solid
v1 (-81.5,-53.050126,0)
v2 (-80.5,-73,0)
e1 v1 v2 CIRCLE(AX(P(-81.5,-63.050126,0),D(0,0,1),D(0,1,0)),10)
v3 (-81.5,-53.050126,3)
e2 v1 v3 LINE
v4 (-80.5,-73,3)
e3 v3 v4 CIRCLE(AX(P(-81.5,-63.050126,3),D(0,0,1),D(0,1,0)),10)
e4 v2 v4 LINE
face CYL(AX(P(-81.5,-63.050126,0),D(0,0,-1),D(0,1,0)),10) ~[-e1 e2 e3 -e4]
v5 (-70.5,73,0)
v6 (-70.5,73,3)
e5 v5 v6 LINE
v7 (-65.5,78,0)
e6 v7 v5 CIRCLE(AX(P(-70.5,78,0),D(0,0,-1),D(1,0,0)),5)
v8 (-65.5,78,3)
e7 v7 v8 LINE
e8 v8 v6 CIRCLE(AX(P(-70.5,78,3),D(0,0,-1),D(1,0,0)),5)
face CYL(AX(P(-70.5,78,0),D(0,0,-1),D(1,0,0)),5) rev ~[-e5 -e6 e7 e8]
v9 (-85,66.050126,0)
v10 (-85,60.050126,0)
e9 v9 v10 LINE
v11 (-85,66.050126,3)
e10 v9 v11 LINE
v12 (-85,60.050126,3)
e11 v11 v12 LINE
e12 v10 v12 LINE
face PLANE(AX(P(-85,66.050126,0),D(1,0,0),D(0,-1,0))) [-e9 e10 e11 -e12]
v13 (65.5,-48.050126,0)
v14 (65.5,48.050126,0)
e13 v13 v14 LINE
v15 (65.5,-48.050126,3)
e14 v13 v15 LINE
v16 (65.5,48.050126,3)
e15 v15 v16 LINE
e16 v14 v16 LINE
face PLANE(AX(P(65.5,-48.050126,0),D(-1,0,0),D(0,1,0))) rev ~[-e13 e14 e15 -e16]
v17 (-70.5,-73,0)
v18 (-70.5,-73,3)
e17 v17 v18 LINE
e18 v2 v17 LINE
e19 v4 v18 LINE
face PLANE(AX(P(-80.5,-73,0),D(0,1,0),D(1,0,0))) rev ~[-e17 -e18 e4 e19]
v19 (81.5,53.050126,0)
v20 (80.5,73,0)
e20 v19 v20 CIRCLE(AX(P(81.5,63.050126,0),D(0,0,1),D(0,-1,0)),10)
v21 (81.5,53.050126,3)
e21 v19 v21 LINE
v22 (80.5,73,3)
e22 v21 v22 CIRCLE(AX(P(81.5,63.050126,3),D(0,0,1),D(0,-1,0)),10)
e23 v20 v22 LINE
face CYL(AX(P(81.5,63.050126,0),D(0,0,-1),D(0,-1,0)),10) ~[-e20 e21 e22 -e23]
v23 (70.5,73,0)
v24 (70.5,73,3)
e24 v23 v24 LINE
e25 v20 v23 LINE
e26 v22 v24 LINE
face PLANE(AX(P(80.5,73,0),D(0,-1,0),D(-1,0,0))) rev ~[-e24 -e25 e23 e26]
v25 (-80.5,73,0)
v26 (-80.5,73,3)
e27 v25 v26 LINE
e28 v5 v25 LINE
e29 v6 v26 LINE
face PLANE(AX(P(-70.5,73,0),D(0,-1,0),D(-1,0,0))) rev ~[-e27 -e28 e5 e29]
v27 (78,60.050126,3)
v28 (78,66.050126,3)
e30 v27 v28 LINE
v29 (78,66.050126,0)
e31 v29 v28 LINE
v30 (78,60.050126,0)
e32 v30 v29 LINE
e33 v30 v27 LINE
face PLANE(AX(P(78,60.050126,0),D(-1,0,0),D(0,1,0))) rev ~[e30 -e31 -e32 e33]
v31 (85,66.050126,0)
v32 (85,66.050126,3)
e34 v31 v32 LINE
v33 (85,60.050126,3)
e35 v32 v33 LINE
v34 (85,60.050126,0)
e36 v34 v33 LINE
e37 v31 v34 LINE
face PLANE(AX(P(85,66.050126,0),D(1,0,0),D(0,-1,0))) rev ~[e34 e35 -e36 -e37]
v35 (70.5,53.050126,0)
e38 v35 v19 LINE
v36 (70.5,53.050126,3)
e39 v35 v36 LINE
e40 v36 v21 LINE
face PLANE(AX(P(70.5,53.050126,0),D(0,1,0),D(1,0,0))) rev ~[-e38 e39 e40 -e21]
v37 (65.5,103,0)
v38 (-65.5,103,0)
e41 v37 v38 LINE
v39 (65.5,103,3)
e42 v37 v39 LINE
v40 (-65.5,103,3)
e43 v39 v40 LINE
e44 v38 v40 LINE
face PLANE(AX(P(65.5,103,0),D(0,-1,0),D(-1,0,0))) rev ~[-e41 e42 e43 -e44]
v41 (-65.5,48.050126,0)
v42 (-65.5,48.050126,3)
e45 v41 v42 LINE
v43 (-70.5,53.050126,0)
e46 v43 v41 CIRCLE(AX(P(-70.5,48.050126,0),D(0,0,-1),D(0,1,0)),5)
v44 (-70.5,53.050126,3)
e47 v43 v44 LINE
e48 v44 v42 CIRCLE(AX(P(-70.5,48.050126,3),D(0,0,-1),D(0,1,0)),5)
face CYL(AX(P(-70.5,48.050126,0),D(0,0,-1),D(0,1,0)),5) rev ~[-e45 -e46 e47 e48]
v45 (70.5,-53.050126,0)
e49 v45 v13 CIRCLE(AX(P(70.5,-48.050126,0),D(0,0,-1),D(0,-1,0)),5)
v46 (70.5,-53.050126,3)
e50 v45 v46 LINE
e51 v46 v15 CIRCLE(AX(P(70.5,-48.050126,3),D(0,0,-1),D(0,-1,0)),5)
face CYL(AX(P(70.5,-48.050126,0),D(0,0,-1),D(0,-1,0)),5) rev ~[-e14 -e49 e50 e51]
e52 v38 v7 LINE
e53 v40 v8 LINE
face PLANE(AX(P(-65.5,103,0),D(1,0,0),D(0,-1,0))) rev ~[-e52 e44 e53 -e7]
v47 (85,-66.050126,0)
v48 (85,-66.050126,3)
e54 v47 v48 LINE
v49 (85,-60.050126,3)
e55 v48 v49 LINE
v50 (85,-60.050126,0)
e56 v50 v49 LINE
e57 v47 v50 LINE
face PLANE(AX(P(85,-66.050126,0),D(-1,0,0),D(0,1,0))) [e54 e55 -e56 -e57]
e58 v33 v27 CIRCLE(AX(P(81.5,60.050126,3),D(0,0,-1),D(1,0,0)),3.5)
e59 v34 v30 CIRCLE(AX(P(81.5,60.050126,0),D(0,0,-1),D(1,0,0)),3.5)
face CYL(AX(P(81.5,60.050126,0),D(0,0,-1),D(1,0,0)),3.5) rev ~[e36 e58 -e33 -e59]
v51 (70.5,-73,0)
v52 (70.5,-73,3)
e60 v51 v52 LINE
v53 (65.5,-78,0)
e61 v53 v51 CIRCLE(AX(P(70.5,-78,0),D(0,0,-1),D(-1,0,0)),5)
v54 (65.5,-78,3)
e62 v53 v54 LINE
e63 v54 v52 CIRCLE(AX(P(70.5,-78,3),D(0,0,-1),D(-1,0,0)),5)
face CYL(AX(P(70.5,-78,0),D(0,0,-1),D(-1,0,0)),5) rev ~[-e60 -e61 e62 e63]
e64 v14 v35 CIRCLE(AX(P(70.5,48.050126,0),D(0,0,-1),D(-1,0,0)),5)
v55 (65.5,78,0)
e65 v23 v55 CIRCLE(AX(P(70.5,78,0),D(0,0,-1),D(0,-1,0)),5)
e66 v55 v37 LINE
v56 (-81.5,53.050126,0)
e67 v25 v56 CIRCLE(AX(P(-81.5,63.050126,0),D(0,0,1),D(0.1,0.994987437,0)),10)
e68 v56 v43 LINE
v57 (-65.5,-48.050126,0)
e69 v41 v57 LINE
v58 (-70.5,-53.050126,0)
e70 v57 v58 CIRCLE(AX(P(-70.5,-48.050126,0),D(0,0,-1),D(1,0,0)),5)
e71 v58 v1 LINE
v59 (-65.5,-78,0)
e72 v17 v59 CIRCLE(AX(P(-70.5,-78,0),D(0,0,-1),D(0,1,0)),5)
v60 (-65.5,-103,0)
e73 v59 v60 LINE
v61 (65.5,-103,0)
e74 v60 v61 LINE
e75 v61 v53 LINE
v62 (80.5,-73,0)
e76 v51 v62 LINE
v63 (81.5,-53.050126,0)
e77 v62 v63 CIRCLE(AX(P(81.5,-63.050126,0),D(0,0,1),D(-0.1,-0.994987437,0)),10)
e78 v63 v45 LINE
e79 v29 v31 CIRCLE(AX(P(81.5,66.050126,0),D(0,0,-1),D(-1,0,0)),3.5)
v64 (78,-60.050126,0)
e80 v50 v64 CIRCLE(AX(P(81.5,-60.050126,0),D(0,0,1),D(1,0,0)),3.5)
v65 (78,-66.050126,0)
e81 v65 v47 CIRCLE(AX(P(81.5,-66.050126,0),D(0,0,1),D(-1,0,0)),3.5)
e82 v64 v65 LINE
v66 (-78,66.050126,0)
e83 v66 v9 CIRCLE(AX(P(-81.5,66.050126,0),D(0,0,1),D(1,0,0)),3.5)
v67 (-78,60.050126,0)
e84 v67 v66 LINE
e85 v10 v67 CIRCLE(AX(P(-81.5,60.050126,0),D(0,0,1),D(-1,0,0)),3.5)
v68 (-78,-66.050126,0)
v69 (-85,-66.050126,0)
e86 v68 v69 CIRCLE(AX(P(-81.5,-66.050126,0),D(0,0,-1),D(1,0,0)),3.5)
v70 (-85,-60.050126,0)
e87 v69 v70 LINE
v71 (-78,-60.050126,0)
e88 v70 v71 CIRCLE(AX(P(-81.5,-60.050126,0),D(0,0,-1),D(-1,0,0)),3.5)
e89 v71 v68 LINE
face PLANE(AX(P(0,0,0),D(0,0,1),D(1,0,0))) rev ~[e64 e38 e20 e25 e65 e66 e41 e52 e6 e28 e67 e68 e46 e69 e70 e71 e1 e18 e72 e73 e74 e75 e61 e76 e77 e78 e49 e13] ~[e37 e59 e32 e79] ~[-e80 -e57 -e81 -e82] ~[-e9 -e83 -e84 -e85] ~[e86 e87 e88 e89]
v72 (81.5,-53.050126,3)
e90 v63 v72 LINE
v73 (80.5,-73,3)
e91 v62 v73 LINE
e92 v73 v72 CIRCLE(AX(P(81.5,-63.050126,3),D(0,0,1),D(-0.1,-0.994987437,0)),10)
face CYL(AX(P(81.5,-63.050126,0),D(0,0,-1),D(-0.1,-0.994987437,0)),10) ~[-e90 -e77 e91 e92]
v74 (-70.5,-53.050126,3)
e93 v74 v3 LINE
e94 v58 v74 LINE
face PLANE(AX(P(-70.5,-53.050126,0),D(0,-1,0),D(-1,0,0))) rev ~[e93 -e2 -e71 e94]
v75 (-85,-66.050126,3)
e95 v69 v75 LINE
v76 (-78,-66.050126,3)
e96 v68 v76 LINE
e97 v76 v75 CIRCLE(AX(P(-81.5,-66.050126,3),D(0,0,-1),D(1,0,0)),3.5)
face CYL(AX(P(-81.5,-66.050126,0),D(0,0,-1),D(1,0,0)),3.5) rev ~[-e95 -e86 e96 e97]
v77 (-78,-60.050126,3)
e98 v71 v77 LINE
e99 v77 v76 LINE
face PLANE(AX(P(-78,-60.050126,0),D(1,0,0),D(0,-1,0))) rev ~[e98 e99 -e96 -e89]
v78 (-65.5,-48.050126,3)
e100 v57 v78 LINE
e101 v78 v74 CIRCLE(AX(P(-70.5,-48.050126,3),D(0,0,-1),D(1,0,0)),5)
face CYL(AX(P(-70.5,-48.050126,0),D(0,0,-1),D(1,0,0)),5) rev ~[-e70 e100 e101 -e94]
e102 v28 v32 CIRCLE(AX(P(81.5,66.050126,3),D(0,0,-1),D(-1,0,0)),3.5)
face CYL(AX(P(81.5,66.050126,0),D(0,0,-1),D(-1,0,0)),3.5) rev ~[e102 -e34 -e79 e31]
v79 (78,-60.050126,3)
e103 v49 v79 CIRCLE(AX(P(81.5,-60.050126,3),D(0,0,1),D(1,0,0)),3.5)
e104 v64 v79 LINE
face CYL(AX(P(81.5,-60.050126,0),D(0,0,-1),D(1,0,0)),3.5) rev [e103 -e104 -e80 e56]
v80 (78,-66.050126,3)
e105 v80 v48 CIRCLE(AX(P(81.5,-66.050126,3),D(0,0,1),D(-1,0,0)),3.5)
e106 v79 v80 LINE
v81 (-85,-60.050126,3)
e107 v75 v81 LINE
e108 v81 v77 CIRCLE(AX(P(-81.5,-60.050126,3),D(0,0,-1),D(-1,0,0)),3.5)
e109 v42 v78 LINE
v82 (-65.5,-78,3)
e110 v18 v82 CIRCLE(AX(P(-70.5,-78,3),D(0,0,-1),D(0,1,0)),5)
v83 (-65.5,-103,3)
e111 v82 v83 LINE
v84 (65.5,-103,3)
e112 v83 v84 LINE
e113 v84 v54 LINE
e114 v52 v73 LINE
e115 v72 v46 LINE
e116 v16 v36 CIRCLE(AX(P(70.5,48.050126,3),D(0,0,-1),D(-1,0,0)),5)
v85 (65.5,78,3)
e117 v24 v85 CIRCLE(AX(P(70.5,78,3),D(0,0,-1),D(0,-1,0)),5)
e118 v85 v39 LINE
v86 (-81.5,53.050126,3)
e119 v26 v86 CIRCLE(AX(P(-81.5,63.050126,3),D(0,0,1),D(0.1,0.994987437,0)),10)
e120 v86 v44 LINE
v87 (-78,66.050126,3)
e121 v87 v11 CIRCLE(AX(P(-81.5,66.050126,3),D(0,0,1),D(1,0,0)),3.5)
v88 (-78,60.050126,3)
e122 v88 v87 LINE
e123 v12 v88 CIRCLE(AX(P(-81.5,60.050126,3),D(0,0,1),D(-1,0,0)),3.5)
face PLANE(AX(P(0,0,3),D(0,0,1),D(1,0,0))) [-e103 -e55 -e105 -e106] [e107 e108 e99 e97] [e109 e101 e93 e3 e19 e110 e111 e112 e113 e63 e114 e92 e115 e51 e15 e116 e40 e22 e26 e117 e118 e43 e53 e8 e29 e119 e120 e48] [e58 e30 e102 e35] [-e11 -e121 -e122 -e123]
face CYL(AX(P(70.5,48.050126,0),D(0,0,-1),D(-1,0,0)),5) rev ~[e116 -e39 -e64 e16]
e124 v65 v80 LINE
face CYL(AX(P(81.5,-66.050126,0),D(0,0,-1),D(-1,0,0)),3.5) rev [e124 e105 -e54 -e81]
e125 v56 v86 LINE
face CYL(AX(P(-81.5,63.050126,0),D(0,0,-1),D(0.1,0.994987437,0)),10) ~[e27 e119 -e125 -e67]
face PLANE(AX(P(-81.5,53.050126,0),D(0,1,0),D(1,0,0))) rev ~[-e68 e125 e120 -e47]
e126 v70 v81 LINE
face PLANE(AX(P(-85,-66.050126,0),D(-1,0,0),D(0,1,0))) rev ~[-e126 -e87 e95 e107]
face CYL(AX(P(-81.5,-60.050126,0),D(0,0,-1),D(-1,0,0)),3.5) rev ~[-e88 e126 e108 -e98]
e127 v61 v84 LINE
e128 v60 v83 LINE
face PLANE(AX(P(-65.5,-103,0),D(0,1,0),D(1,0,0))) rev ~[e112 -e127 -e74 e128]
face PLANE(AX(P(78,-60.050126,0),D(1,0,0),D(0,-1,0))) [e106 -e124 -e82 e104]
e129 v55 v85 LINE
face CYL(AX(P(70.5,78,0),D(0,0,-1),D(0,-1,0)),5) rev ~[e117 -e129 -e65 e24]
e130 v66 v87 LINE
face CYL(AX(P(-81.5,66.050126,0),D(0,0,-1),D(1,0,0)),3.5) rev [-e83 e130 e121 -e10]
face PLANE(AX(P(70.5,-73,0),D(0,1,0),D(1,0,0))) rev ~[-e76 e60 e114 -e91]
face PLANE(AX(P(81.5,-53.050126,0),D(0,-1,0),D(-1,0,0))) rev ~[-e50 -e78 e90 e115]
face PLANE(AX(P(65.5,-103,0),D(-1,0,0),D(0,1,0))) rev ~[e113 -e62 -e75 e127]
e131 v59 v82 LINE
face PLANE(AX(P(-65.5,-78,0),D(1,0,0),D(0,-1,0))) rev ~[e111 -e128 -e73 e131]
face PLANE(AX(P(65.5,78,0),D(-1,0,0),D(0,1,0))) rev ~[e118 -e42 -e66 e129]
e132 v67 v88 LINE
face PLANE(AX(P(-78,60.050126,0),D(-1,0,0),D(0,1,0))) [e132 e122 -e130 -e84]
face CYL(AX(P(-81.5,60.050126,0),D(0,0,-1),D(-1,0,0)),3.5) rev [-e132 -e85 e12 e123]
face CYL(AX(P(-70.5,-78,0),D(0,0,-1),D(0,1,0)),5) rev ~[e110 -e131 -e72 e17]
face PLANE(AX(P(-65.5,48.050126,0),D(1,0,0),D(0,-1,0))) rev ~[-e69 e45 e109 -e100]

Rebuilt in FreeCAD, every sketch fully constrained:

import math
import FreeCAD as App
import Part
import Sketcher
from FreeCAD import Vector
Q = App.Units.Quantity

doc = App.newDocument("Part")
body = doc.addObject("PartDesign::Body", "Body")

sketch1 = body.newObject("Sketcher::SketchObject", "Sketch")
sketch1.AttachmentSupport = (doc.getObject("XY_Plane"), [""])
sketch1.MapMode = "FlatFace"
sketch1.addGeometry(Part.LineSegment(Vector(-65.5, -103, 0), Vector(65.5, -103, 0)), False)
sketch1.addGeometry(Part.LineSegment(Vector(65.5, -103, 0), Vector(65.5, -78, 0)), False)
sketch1.addGeometry(Part.ArcOfCircle(Part.Circle(Vector(70.5, -78, 0), Vector(0, 0, 1), 5), math.radians(90), math.radians(180)), False)
sketch1.addGeometry(Part.LineSegment(Vector(70.5, -73, 0), Vector(80.5, -73, 0)), False)
sketch1.addGeometry(Part.ArcOfCircle(Part.Circle(Vector(81.5, -63.050126, 0), Vector(0, 0, 1), 10), math.radians(-95.73917), math.radians(90)), False)
sketch1.addGeometry(Part.LineSegment(Vector(81.5, -53.050126, 0), Vector(70.5, -53.050126, 0)), False)
sketch1.addGeometry(Part.ArcOfCircle(Part.Circle(Vector(70.5, -48.050126, 0), Vector(0, 0, 1), 5), math.radians(180), math.radians(270)), False)
sketch1.addGeometry(Part.LineSegment(Vector(65.5, -48.050126, 0), Vector(65.5, 48.050126, 0)), False)
sketch1.addGeometry(Part.ArcOfCircle(Part.Circle(Vector(70.5, 48.050126, 0), Vector(0, 0, 1), 5), math.radians(90), math.radians(180)), False)
sketch1.addGeometry(Part.LineSegment(Vector(70.5, 53.050126, 0), Vector(81.5, 53.050126, 0)), False)
sketch1.addGeometry(Part.ArcOfCircle(Part.Circle(Vector(81.5, 63.050126, 0), Vector(0, 0, 1), 10), math.radians(-90), math.radians(95.73917)), False)
sketch1.addGeometry(Part.LineSegment(Vector(80.5, 73, 0), Vector(70.5, 73, 0)), False)
sketch1.addGeometry(Part.ArcOfCircle(Part.Circle(Vector(70.5, 78, 0), Vector(0, 0, 1), 5), math.radians(180), math.radians(270)), False)
sketch1.addGeometry(Part.LineSegment(Vector(65.5, 78, 0), Vector(65.5, 103, 0)), False)
sketch1.addGeometry(Part.LineSegment(Vector(65.5, 103, 0), Vector(-65.5, 103, 0)), False)
sketch1.addGeometry(Part.LineSegment(Vector(-65.5, 103, 0), Vector(-65.5, 78, 0)), False)
sketch1.addGeometry(Part.ArcOfCircle(Part.Circle(Vector(-70.5, 78, 0), Vector(0, 0, 1), 5), math.radians(-90), math.radians(0)), False)
sketch1.addGeometry(Part.LineSegment(Vector(-70.5, 73, 0), Vector(-80.5, 73, 0)), False)
sketch1.addGeometry(Part.ArcOfCircle(Part.Circle(Vector(-81.5, 63.050126, 0), Vector(0, 0, 1), 10), math.radians(84.26083), math.radians(270)), False)
sketch1.addGeometry(Part.LineSegment(Vector(-81.5, 53.050126, 0), Vector(-70.5, 53.050126, 0)), False)
sketch1.addGeometry(Part.ArcOfCircle(Part.Circle(Vector(-70.5, 48.050126, 0), Vector(0, 0, 1), 5), math.radians(0), math.radians(90)), False)
sketch1.addGeometry(Part.LineSegment(Vector(-65.5, 48.050126, 0), Vector(-65.5, -48.050126, 0)), False)
sketch1.addGeometry(Part.ArcOfCircle(Part.Circle(Vector(-70.5, -48.050126, 0), Vector(0, 0, 1), 5), math.radians(-90), math.radians(0)), False)
sketch1.addGeometry(Part.LineSegment(Vector(-70.5, -53.050126, 0), Vector(-81.5, -53.050126, 0)), False)
sketch1.addGeometry(Part.ArcOfCircle(Part.Circle(Vector(-81.5, -63.050126, 0), Vector(0, 0, 1), 10), math.radians(90), math.radians(275.73917)), False)
sketch1.addGeometry(Part.LineSegment(Vector(-80.5, -73, 0), Vector(-70.5, -73, 0)), False)
sketch1.addGeometry(Part.ArcOfCircle(Part.Circle(Vector(-70.5, -78, 0), Vector(0, 0, 1), 5), math.radians(0), math.radians(90)), False)
sketch1.addGeometry(Part.LineSegment(Vector(-65.5, -78, 0), Vector(-65.5, -103, 0)), False)
sketch1.addGeometry(Part.ArcOfCircle(Part.Circle(Vector(-81.5, -60.050126, 0), Vector(0, 0, 1), 3.5), math.radians(0), math.radians(180)), False)
sketch1.addGeometry(Part.LineSegment(Vector(-78, -60.050126, 0), Vector(-78, -66.050126, 0)), False)
sketch1.addGeometry(Part.ArcOfCircle(Part.Circle(Vector(-81.5, -66.050126, 0), Vector(0, 0, 1), 3.5), math.radians(180), math.radians(360)), False)
sketch1.addGeometry(Part.LineSegment(Vector(-85, -66.050126, 0), Vector(-85, -60.050126, 0)), False)
sketch1.addGeometry(Part.LineSegment(Vector(78, -66.050126, 0), Vector(78, -60.050126, 0)), False)
sketch1.addGeometry(Part.ArcOfCircle(Part.Circle(Vector(81.5, -60.050126, 0), Vector(0, 0, 1), 3.5), math.radians(0), math.radians(180)), False)
sketch1.addGeometry(Part.LineSegment(Vector(85, -60.050126, 0), Vector(85, -66.050126, 0)), False)
sketch1.addGeometry(Part.ArcOfCircle(Part.Circle(Vector(81.5, -66.050126, 0), Vector(0, 0, 1), 3.5), math.radians(180), math.radians(360)), False)
sketch1.addGeometry(Part.LineSegment(Vector(-78, 66.050126, 0), Vector(-78, 60.050126, 0)), False)
sketch1.addGeometry(Part.ArcOfCircle(Part.Circle(Vector(-81.5, 60.050126, 0), Vector(0, 0, 1), 3.5), math.radians(180), math.radians(360)), False)
sketch1.addGeometry(Part.LineSegment(Vector(-85, 60.050126, 0), Vector(-85, 66.050126, 0)), False)
sketch1.addGeometry(Part.ArcOfCircle(Part.Circle(Vector(-81.5, 66.050126, 0), Vector(0, 0, 1), 3.5), math.radians(0), math.radians(180)), False)
sketch1.addGeometry(Part.ArcOfCircle(Part.Circle(Vector(81.5, 60.050126, 0), Vector(0, 0, 1), 3.5), math.radians(180), math.radians(360)), False)
sketch1.addGeometry(Part.LineSegment(Vector(78, 60.050126, 0), Vector(78, 66.050126, 0)), False)
sketch1.addGeometry(Part.ArcOfCircle(Part.Circle(Vector(81.5, 66.050126, 0), Vector(0, 0, 1), 3.5), math.radians(0), math.radians(180)), False)
sketch1.addGeometry(Part.LineSegment(Vector(85, 66.050126, 0), Vector(85, 60.050126, 0)), False)
sketch1.addConstraint(Sketcher.Constraint("Coincident", 0, 2, 1, 1))
sketch1.addConstraint(Sketcher.Constraint("Tangent", 1, 2, 2, 2))
sketch1.addConstraint(Sketcher.Constraint("Tangent", 2, 1, 3, 1))
sketch1.addConstraint(Sketcher.Constraint("Coincident", 3, 2, 4, 1))
sketch1.addConstraint(Sketcher.Constraint("Tangent", 4, 2, 5, 1))
sketch1.addConstraint(Sketcher.Constraint("Tangent", 5, 2, 6, 2))
sketch1.addConstraint(Sketcher.Constraint("Tangent", 6, 1, 7, 1))
sketch1.addConstraint(Sketcher.Constraint("Tangent", 7, 2, 8, 2))
sketch1.addConstraint(Sketcher.Constraint("Tangent", 8, 1, 9, 1))
sketch1.addConstraint(Sketcher.Constraint("Tangent", 9, 2, 10, 1))
sketch1.addConstraint(Sketcher.Constraint("Coincident", 10, 2, 11, 1))
sketch1.addConstraint(Sketcher.Constraint("Tangent", 11, 2, 12, 2))
sketch1.addConstraint(Sketcher.Constraint("Tangent", 12, 1, 13, 1))
sketch1.addConstraint(Sketcher.Constraint("Coincident", 13, 2, 14, 1))
sketch1.addConstraint(Sketcher.Constraint("Coincident", 14, 2, 15, 1))
sketch1.addConstraint(Sketcher.Constraint("Tangent", 15, 2, 16, 2))
sketch1.addConstraint(Sketcher.Constraint("Tangent", 16, 1, 17, 1))
sketch1.addConstraint(Sketcher.Constraint("Coincident", 17, 2, 18, 1))
sketch1.addConstraint(Sketcher.Constraint("Tangent", 18, 2, 19, 1))
sketch1.addConstraint(Sketcher.Constraint("Tangent", 19, 2, 20, 2))
sketch1.addConstraint(Sketcher.Constraint("Tangent", 20, 1, 21, 1))
sketch1.addConstraint(Sketcher.Constraint("Tangent", 21, 2, 22, 2))
sketch1.addConstraint(Sketcher.Constraint("Tangent", 22, 1, 23, 1))
sketch1.addConstraint(Sketcher.Constraint("Tangent", 23, 2, 24, 1))
sketch1.addConstraint(Sketcher.Constraint("Coincident", 24, 2, 25, 1))
sketch1.addConstraint(Sketcher.Constraint("Tangent", 25, 2, 26, 2))
sketch1.addConstraint(Sketcher.Constraint("Tangent", 26, 1, 27, 1))
sketch1.addConstraint(Sketcher.Constraint("Coincident", 27, 2, 0, 1))
sketch1.addConstraint(Sketcher.Constraint("Tangent", 28, 1, 29, 1))
sketch1.addConstraint(Sketcher.Constraint("Tangent", 29, 2, 30, 2))
sketch1.addConstraint(Sketcher.Constraint("Tangent", 30, 1, 31, 1))
sketch1.addConstraint(Sketcher.Constraint("Tangent", 31, 2, 28, 2))
sketch1.addConstraint(Sketcher.Constraint("Tangent", 32, 2, 33, 2))
sketch1.addConstraint(Sketcher.Constraint("Tangent", 33, 1, 34, 1))
sketch1.addConstraint(Sketcher.Constraint("Tangent", 34, 2, 35, 2))
sketch1.addConstraint(Sketcher.Constraint("Tangent", 35, 1, 32, 1))
sketch1.addConstraint(Sketcher.Constraint("Tangent", 36, 2, 37, 2))
sketch1.addConstraint(Sketcher.Constraint("Tangent", 37, 1, 38, 1))
sketch1.addConstraint(Sketcher.Constraint("Tangent", 38, 2, 39, 2))
sketch1.addConstraint(Sketcher.Constraint("Tangent", 39, 1, 36, 1))
sketch1.addConstraint(Sketcher.Constraint("Tangent", 40, 1, 41, 1))
sketch1.addConstraint(Sketcher.Constraint("Tangent", 41, 2, 42, 2))
sketch1.addConstraint(Sketcher.Constraint("Tangent", 42, 1, 43, 1))
sketch1.addConstraint(Sketcher.Constraint("Tangent", 43, 2, 40, 2))
sketch1.addConstraint(Sketcher.Constraint("Horizontal", 0))
sketch1.addConstraint(Sketcher.Constraint("Vertical", 1))
sketch1.addConstraint(Sketcher.Constraint("Horizontal", 3))
sketch1.addConstraint(Sketcher.Constraint("Horizontal", 5))
sketch1.addConstraint(Sketcher.Constraint("Vertical", 7))
sketch1.addConstraint(Sketcher.Constraint("Horizontal", 9))
sketch1.addConstraint(Sketcher.Constraint("Horizontal", 11))
sketch1.addConstraint(Sketcher.Constraint("Vertical", 13))
sketch1.addConstraint(Sketcher.Constraint("Horizontal", 14))
sketch1.addConstraint(Sketcher.Constraint("Vertical", 15))
sketch1.addConstraint(Sketcher.Constraint("Horizontal", 17))
sketch1.addConstraint(Sketcher.Constraint("Horizontal", 19))
sketch1.addConstraint(Sketcher.Constraint("Vertical", 21))
sketch1.addConstraint(Sketcher.Constraint("Horizontal", 23))
sketch1.addConstraint(Sketcher.Constraint("Horizontal", 25))
sketch1.addConstraint(Sketcher.Constraint("Vertical", 27))
sketch1.addConstraint(Sketcher.Constraint("Vertical", 29))
sketch1.addConstraint(Sketcher.Constraint("Vertical", 31))
sketch1.addConstraint(Sketcher.Constraint("Vertical", 32))
sketch1.addConstraint(Sketcher.Constraint("Vertical", 34))
sketch1.addConstraint(Sketcher.Constraint("Vertical", 36))
sketch1.addConstraint(Sketcher.Constraint("Vertical", 38))
sketch1.addConstraint(Sketcher.Constraint("Vertical", 41))
sketch1.addConstraint(Sketcher.Constraint("Vertical", 43))
sketch1.addConstraint(Sketcher.Constraint("Equal", 2, 6))
sketch1.addConstraint(Sketcher.Constraint("Equal", 6, 8))
sketch1.addConstraint(Sketcher.Constraint("Equal", 4, 10))
sketch1.addConstraint(Sketcher.Constraint("Equal", 8, 12))
sketch1.addConstraint(Sketcher.Constraint("Equal", 12, 16))
sketch1.addConstraint(Sketcher.Constraint("Equal", 10, 18))
sketch1.addConstraint(Sketcher.Constraint("Equal", 16, 20))
sketch1.addConstraint(Sketcher.Constraint("Equal", 20, 22))
sketch1.addConstraint(Sketcher.Constraint("Equal", 18, 24))
sketch1.addConstraint(Sketcher.Constraint("Equal", 22, 26))
sketch1.addConstraint(Sketcher.Constraint("Equal", 30, 33))
sketch1.addConstraint(Sketcher.Constraint("Equal", 35, 37))
sketch1.addConstraint(Sketcher.Constraint("Equal", 39, 40))
sketch1.addConstraint(Sketcher.Constraint("Symmetric", 2, 3, 16, 3, -1, 1))
sketch1.addConstraint(Sketcher.Constraint("Symmetric", 4, 3, 18, 3, -1, 1))
sketch1.addConstraint(Sketcher.Constraint("Symmetric", 8, 3, 22, 3, -1, 1))
sketch1.addConstraint(Sketcher.Constraint("Symmetric", 12, 3, 26, 3, -1, 1))
sketch1.addConstraint(Sketcher.Constraint("Symmetric", 33, 3, 37, 3, -1, 1))
sketch1.addConstraint(Sketcher.Constraint("Symmetric", 28, 3, 40, 3, -1, 1))
sketch1.addConstraint(Sketcher.Constraint("Symmetric", 12, 3, 16, 3, -2))
sketch1.addConstraint(Sketcher.Constraint("Symmetric", 10, 3, 18, 3, -2))
sketch1.addConstraint(Sketcher.Constraint("Symmetric", 28, 3, 33, 3, -2))
sketch1.addConstraint(Sketcher.Constraint("Horizontal", 30, 3, 35, 3))
sketch1.addConstraint(Sketcher.Constraint("Horizontal", 39, 3, 42, 3))
sketch1.addConstraint(Sketcher.Constraint("Vertical", 2, 3, 6, 3))
sketch1.addConstraint(Sketcher.Constraint("Vertical", 18, 3, 24, 3))
sketch1.addConstraint(Sketcher.Constraint("Vertical", 24, 3, 28, 3))
sketch1.addConstraint(Sketcher.Constraint("Equal", 1, 13))
sketch1.addConstraint(Sketcher.Constraint("Equal", 34, 36))
sketch1.addConstraint(Sketcher.Constraint("Radius", 2, Q("5 mm")))
sketch1.addConstraint(Sketcher.Constraint("Radius", 4, Q("10 mm")))
sketch1.addConstraint(Sketcher.Constraint("Radius", 28, Q("3.5 mm")))
sketch1.addConstraint(Sketcher.Constraint("DistanceX", 0, 1, 0, 2, Q("131 mm")))
sketch1.addConstraint(Sketcher.Constraint("DistanceX", 3, 1, 3, 2, Q("10 mm")))
sketch1.addConstraint(Sketcher.Constraint("DistanceX", 5, 2, 5, 1, Q("11 mm")))
sketch1.addConstraint(Sketcher.Constraint("DistanceY", 1, 1, 1, 2, Q("25 mm")))
sketch1.addConstraint(Sketcher.Constraint("DistanceY", 29, 2, 29, 1, Q("6 mm")))
sketch1.addConstraint(Sketcher.Constraint("DistanceY", 2, 3, -1, 1, Q("78 mm")))
sketch1.addConstraint(Sketcher.Constraint("DistanceY", 28, 3, -1, 1, Q("60.050126 mm")))
pad1 = body.newObject("PartDesign::Pad", "Pad")
pad1.Profile = sketch1
pad1.Length = 3

doc.recompute()
